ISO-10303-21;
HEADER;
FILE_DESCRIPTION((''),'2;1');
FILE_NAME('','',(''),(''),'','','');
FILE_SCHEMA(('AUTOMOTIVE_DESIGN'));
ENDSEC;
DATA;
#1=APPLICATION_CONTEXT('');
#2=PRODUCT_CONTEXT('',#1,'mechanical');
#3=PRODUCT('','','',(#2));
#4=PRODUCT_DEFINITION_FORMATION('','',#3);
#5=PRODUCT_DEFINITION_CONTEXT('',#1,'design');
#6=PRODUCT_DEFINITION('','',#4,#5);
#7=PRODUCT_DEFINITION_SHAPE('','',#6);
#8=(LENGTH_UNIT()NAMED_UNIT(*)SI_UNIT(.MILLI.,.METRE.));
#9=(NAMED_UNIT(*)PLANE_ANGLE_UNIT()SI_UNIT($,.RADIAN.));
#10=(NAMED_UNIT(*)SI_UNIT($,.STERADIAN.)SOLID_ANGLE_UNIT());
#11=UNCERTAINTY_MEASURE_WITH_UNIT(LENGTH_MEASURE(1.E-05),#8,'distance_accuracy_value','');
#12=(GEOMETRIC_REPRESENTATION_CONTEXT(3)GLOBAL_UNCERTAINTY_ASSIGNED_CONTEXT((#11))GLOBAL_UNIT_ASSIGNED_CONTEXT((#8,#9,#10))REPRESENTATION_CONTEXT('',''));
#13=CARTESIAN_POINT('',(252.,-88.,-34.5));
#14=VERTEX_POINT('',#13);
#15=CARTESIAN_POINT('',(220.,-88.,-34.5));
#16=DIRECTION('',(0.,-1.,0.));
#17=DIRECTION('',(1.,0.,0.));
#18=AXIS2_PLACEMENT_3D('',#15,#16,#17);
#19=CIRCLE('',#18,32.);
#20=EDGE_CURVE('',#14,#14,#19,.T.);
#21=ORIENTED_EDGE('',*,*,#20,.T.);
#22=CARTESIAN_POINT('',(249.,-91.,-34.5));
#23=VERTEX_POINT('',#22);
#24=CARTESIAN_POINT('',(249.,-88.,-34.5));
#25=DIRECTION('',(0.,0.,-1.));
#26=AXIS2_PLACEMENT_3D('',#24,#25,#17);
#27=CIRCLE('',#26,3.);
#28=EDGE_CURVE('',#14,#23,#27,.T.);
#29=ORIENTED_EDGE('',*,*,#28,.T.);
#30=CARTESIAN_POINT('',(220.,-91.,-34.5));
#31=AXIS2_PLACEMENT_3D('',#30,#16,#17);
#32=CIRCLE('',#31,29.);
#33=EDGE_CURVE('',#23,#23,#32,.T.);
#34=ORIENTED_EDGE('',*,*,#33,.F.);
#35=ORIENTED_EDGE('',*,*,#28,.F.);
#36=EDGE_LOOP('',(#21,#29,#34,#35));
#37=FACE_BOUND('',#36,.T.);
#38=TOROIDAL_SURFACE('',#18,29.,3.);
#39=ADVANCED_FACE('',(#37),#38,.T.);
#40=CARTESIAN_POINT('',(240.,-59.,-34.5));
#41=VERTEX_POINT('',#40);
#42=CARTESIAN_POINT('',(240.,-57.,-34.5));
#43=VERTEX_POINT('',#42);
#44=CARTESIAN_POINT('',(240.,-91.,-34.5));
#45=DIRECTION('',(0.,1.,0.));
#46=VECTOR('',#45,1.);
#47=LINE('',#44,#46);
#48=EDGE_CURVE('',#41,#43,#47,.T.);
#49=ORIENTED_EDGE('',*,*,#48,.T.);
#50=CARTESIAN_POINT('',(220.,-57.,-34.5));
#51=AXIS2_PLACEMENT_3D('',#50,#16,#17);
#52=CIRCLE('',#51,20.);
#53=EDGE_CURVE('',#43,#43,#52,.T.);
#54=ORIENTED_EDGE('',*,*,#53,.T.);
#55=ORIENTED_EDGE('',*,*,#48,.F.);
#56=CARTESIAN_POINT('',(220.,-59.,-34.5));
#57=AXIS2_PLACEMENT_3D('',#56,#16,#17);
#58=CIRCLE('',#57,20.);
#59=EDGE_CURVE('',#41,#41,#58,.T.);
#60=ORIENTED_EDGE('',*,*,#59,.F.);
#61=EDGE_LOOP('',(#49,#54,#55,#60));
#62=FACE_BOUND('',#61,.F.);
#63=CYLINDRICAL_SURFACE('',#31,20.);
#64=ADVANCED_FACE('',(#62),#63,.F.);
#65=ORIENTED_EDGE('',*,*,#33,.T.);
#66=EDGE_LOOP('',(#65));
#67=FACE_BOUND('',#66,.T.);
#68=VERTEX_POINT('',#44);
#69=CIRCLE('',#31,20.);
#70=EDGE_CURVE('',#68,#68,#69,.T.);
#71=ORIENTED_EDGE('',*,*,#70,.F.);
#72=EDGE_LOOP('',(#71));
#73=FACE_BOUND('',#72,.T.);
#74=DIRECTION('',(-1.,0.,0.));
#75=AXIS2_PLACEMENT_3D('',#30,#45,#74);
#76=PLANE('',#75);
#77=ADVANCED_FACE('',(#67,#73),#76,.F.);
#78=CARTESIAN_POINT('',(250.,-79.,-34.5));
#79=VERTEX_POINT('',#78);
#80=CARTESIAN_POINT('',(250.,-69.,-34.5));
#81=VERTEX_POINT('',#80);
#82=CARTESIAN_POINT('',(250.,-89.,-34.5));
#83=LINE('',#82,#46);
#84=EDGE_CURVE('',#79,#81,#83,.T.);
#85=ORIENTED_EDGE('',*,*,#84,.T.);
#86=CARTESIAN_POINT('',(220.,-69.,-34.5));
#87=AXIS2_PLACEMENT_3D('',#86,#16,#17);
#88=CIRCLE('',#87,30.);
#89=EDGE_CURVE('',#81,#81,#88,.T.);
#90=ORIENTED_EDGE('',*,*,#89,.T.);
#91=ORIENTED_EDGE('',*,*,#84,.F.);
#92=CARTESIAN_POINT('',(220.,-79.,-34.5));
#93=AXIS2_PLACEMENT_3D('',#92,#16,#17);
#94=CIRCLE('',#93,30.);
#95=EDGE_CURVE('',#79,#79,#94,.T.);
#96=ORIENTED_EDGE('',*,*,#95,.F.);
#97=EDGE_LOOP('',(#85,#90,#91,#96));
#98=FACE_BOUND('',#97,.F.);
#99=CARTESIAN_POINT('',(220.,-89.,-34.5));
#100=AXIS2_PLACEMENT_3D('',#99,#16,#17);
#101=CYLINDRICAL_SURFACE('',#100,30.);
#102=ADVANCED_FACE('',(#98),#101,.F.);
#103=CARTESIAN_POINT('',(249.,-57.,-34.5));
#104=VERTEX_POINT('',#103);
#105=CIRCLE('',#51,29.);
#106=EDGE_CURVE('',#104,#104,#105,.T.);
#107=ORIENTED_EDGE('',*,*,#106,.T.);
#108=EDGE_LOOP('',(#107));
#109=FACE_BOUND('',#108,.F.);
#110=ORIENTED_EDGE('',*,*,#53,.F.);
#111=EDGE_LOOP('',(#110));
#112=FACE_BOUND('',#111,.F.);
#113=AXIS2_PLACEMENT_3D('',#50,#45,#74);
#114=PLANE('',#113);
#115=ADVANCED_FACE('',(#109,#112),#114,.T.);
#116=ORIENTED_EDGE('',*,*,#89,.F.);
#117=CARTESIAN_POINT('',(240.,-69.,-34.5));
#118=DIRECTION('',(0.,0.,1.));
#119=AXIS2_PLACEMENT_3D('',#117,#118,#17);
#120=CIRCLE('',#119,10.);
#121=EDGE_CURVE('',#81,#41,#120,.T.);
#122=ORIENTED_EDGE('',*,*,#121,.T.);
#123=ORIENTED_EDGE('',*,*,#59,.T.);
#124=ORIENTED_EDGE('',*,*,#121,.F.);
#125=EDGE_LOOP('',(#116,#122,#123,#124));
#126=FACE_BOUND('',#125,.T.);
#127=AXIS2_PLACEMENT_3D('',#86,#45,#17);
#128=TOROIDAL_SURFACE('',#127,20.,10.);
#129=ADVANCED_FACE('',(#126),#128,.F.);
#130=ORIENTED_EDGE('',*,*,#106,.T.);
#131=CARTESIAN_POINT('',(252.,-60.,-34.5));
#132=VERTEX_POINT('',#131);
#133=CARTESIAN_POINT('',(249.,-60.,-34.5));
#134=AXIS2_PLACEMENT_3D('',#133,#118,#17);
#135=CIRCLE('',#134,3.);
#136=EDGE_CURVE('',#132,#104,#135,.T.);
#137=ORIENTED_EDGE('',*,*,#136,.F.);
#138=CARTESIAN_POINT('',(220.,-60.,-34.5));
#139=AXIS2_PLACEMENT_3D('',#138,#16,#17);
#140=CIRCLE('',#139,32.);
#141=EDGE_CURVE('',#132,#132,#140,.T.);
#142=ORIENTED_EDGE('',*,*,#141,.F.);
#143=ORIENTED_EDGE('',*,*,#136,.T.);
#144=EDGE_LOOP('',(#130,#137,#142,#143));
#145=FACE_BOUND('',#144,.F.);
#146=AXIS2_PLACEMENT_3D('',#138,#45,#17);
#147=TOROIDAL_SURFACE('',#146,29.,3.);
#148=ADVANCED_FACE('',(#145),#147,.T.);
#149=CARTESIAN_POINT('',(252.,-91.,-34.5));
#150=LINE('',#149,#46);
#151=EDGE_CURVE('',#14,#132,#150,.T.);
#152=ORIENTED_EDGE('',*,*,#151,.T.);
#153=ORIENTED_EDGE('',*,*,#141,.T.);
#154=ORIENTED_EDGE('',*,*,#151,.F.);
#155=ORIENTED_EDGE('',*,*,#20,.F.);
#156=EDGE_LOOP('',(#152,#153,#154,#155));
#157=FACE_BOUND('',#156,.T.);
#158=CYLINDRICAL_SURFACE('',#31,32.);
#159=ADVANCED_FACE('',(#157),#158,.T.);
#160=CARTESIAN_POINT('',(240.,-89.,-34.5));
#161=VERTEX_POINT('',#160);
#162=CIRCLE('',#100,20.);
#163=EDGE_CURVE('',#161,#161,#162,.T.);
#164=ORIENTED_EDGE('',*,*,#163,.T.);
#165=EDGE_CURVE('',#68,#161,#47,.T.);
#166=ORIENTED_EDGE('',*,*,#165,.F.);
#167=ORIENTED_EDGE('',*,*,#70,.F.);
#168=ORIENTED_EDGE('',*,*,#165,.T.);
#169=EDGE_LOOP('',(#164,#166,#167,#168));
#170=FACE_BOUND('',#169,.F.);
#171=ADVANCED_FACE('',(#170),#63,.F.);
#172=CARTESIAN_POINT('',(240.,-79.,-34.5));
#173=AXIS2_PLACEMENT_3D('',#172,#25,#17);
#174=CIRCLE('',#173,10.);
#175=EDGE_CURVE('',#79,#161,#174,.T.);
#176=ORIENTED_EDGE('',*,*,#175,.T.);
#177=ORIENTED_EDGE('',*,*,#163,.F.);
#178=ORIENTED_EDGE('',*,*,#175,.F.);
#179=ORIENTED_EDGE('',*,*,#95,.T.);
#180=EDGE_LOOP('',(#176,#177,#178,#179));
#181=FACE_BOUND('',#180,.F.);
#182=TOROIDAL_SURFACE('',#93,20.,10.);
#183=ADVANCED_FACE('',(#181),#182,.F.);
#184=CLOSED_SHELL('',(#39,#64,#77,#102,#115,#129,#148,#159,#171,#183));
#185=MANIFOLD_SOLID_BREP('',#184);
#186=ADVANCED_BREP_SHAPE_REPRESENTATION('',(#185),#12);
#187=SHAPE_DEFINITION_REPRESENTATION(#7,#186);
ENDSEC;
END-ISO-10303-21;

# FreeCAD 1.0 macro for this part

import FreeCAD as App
import Part
import Sketcher


def edges_at(feature, points):
    """Names of the edges that pass closest to the given points."""
    edges = feature.Shape.Edges
    near = lambda p: min(range(len(edges)), key=lambda i: edges[i].distToShape(Part.Vertex(*p))[0])
    return sorted({f"Edge{near(p) + 1}" for p in points})

doc = App.newDocument("Part")
body = doc.addObject("PartDesign::Body", "Body")

# Sketch on XY plane
sketch1 = doc.addObject("Sketcher::SketchObject", "Sketch")
body.addObject(sketch1)
sketch1.AttachmentSupport = (doc.XY_Plane, [""])
sketch1.MapMode = "FlatFace"
sketch1.addGeometry(Part.Circle(App.Vector(0, 0, 0), App.Vector(0, 0, 1), 1.7), False)
sketch1.addConstraint([
    Sketcher.Constraint("Coincident", 0, 3, -1, 1),
    Sketcher.Constraint("Diameter", 0, 3.4),
])
pad1 = doc.addObject("PartDesign::Pad", "Pad")
body.addObject(pad1)
pad1.Profile = sketch1
pad1.Length = 31
body2 = doc.addObject("PartDesign::Body", "Body001")
doc.recompute()

body.Placement = App.Placement(App.Vector(0, 0, 0), App.Rotation(App.Vector(1, 0, 0), 90))
boolean = doc.addObject("PartDesign::Boolean", "Boolean")
body2.addObject(boolean)
boolean.Type = "Fuse"
boolean.addObjects([body])
body3 = doc.addObject("PartDesign::Body", "Body002")
doc.recompute()

body2.Placement = App.Placement(App.Vector(220, 89, -34.5), App.Rotation(App.Vector(0, 0, 1), 0))
boolean2 = doc.addObject("PartDesign::Boolean", "Boolean001")
body3.addObject(boolean2)
boolean2.Type = "Fuse"
boolean2.addObjects([body2])
body4 = doc.addObject("PartDesign::Body", "Body003")

# Sketch on XY plane
sketch2 = doc.addObject("Sketcher::SketchObject", "Sketch001")
body4.addObject(sketch2)
sketch2.AttachmentSupport = (doc.getObject("XY_Plane003"), [""])
sketch2.MapMode = "FlatFace"
sketch2.addGeometry(Part.Circle(App.Vector(0, 0, 0), App.Vector(0, 0, 1), 30), False)
sketch2.addConstraint([
    Sketcher.Constraint("Coincident", 0, 3, -1, 1),
    Sketcher.Constraint("Diameter", 0, 60.0),
])
pad2 = doc.addObject("PartDesign::Pad", "Pad001")
body4.addObject(pad2)
pad2.Profile = sketch2
pad2.Length = 30
body5 = doc.addObject("PartDesign::Body", "Body004")
doc.recompute()

body4.Placement = App.Placement(App.Vector(0, 0, 0), App.Rotation(App.Vector(1, 0, 0), 90))
boolean3 = doc.addObject("PartDesign::Boolean", "Boolean002")
body5.addObject(boolean3)
boolean3.Type = "Fuse"
boolean3.addObjects([body4])
body6 = doc.addObject("PartDesign::Body", "Body005")
doc.recompute()

body5.Placement = App.Placement(App.Vector(220, 89, -34.5), App.Rotation(App.Vector(0, 0, 1), 0))
boolean4 = doc.addObject("PartDesign::Boolean", "Boolean003")
body6.addObject(boolean4)
boolean4.Type = "Fuse"
boolean4.addObjects([body5])
body7 = doc.addObject("PartDesign::Body", "Body006")

# Sketch on XY plane
sketch3 = doc.addObject("Sketcher::SketchObject", "Sketch002")
body7.addObject(sketch3)
sketch3.AttachmentSupport = (doc.getObject("XY_Plane006"), [""])
sketch3.MapMode = "FlatFace"
sketch3.addGeometry(Part.Circle(App.Vector(0, 0, 0), App.Vector(0, 0, 1), 10), False)
sketch3.addConstraint([
    Sketcher.Constraint("Coincident", 0, 3, -1, 1),
    Sketcher.Constraint("Diameter", 0, 20.0),
])
pad3 = doc.addObject("PartDesign::Pad", "Pad002")
body7.addObject(pad3)
pad3.Profile = sketch3
pad3.Length = 31
body8 = doc.addObject("PartDesign::Body", "Body007")
doc.recompute()

body7.Placement = App.Placement(App.Vector(0, 0, 0), App.Rotation(App.Vector(1, 0, 0), 90))
boolean5 = doc.addObject("PartDesign::Boolean", "Boolean004")
body8.addObject(boolean5)
boolean5.Type = "Fuse"
boolean5.addObjects([body7])
body9 = doc.addObject("PartDesign::Body", "Body008")
doc.recompute()

body8.Placement = App.Placement(App.Vector(220, 89, -34.5), App.Rotation(App.Vector(0, 0, 1), 0))
boolean6 = doc.addObject("PartDesign::Boolean", "Boolean005")
body9.addObject(boolean6)
boolean6.Type = "Fuse"
boolean6.addObjects([body8])
doc.recompute()

boolean7 = doc.addObject("PartDesign::Boolean", "Boolean006")
body9.addObject(boolean7)
boolean7.Type = "Fuse"
boolean7.addObjects([body6])
doc.recompute()

boolean8 = doc.addObject("PartDesign::Boolean", "Boolean007")
body9.addObject(boolean8)
boolean8.Type = "Cut"
boolean8.addObjects([body3])
doc.recompute()

fillet = doc.addObject("PartDesign::Fillet", "Fillet")
body9.addObject(fillet)
fillet.Base = (boolean8, edges_at(boolean8, [(190, 59, -34.5), (190, 89, -34.5)]))
fillet.Radius = 10
body10 = doc.addObject("PartDesign::Body", "Body009")

# Sketch on XY plane
sketch4 = doc.addObject("Sketcher::SketchObject", "Sketch003")
body10.addObject(sketch4)
sketch4.AttachmentSupport = (doc.getObject("XY_Plane009"), [""])
sketch4.MapMode = "FlatFace"
sketch4.addGeometry(Part.Circle(App.Vector(0, 0, 0), App.Vector(0, 0, 1), 20), False)
sketch4.addConstraint([
    Sketcher.Constraint("Coincident", 0, 3, -1, 1),
    Sketcher.Constraint("Diameter", 0, 40.0),
])
pad4 = doc.addObject("PartDesign::Pad", "Pad003")
body10.addObject(pad4)
pad4.Profile = sketch4
pad4.Length = 34
body11 = doc.addObject("PartDesign::Body", "Body010")
doc.recompute()

body10.Placement = App.Placement(App.Vector(0, 0, 0), App.Rotation(App.Vector(1, 0, 0), 90))
boolean9 = doc.addObject("PartDesign::Boolean", "Boolean008")
body11.addObject(boolean9)
boolean9.Type = "Fuse"
boolean9.addObjects([body10])
body12 = doc.addObject("PartDesign::Body", "Body011")
doc.recompute()

body11.Placement = App.Placement(App.Vector(220, 91, -34.5), App.Rotation(App.Vector(0, 0, 1), 0))
boolean10 = doc.addObject("PartDesign::Boolean", "Boolean009")
body12.addObject(boolean10)
boolean10.Type = "Fuse"
boolean10.addObjects([body11])
body13 = doc.addObject("PartDesign::Body", "Body012")

# Sketch on XY plane
sketch5 = doc.addObject("Sketcher::SketchObject", "Sketch004")
body13.addObject(sketch5)
sketch5.AttachmentSupport = (doc.getObject("XY_Plane012"), [""])
sketch5.MapMode = "FlatFace"
sketch5.addGeometry(Part.Circle(App.Vector(0, 0, 0), App.Vector(0, 0, 1), 32), False)
sketch5.addConstraint([
    Sketcher.Constraint("Coincident", 0, 3, -1, 1),
    Sketcher.Constraint("Diameter", 0, 64.0),
])
pad5 = doc.addObject("PartDesign::Pad", "Pad004")
body13.addObject(pad5)
pad5.Profile = sketch5
pad5.Length = 34
body14 = doc.addObject("PartDesign::Body", "Body013")
doc.recompute()

body13.Placement = App.Placement(App.Vector(0, 0, 0), App.Rotation(App.Vector(1, 0, 0), 90))
boolean11 = doc.addObject("PartDesign::Boolean", "Boolean010")
body14.addObject(boolean11)
boolean11.Type = "Fuse"
boolean11.addObjects([body13])
body15 = doc.addObject("PartDesign::Body", "Body014")
doc.recompute()

body14.Placement = App.Placement(App.Vector(220, 91, -34.5), App.Rotation(App.Vector(0, 0, 1), 0))
boolean12 = doc.addObject("PartDesign::Boolean", "Boolean011")
body15.addObject(boolean12)
boolean12.Type = "Fuse"
boolean12.addObjects([body14])
doc.recompute()

boolean13 = doc.addObject("PartDesign::Boolean", "Boolean012")
body15.addObject(boolean13)
boolean13.Type = "Cut"
boolean13.addObjects([body12])
doc.recompute()

boolean14 = doc.addObject("PartDesign::Boolean", "Boolean013")
body15.addObject(boolean14)
boolean14.Type = "Cut"
boolean14.addObjects([body9])
doc.recompute()

fillet2 = doc.addObject("PartDesign::Fillet", "Fillet001")
body15.addObject(fillet2)
fillet2.Base = (boolean14, edges_at(boolean14, [(188, 57, -34.5), (188, 91, -34.5)]))
fillet2.Radius = 3
body16 = doc.addObject("PartDesign::Body", "Body015")
doc.recompute()

mirroring = doc.addObject("Part::Mirroring", "Mirroring")
mirroring.Source = body15
mirroring.Base = App.Vector(0, 0, 0)
mirroring.Normal = App.Vector(0, 1, 0)
body16.BaseFeature = mirroring
doc.recompute()
body15.Visibility = False
mirroring.Visibility = False

doc.recompute()
